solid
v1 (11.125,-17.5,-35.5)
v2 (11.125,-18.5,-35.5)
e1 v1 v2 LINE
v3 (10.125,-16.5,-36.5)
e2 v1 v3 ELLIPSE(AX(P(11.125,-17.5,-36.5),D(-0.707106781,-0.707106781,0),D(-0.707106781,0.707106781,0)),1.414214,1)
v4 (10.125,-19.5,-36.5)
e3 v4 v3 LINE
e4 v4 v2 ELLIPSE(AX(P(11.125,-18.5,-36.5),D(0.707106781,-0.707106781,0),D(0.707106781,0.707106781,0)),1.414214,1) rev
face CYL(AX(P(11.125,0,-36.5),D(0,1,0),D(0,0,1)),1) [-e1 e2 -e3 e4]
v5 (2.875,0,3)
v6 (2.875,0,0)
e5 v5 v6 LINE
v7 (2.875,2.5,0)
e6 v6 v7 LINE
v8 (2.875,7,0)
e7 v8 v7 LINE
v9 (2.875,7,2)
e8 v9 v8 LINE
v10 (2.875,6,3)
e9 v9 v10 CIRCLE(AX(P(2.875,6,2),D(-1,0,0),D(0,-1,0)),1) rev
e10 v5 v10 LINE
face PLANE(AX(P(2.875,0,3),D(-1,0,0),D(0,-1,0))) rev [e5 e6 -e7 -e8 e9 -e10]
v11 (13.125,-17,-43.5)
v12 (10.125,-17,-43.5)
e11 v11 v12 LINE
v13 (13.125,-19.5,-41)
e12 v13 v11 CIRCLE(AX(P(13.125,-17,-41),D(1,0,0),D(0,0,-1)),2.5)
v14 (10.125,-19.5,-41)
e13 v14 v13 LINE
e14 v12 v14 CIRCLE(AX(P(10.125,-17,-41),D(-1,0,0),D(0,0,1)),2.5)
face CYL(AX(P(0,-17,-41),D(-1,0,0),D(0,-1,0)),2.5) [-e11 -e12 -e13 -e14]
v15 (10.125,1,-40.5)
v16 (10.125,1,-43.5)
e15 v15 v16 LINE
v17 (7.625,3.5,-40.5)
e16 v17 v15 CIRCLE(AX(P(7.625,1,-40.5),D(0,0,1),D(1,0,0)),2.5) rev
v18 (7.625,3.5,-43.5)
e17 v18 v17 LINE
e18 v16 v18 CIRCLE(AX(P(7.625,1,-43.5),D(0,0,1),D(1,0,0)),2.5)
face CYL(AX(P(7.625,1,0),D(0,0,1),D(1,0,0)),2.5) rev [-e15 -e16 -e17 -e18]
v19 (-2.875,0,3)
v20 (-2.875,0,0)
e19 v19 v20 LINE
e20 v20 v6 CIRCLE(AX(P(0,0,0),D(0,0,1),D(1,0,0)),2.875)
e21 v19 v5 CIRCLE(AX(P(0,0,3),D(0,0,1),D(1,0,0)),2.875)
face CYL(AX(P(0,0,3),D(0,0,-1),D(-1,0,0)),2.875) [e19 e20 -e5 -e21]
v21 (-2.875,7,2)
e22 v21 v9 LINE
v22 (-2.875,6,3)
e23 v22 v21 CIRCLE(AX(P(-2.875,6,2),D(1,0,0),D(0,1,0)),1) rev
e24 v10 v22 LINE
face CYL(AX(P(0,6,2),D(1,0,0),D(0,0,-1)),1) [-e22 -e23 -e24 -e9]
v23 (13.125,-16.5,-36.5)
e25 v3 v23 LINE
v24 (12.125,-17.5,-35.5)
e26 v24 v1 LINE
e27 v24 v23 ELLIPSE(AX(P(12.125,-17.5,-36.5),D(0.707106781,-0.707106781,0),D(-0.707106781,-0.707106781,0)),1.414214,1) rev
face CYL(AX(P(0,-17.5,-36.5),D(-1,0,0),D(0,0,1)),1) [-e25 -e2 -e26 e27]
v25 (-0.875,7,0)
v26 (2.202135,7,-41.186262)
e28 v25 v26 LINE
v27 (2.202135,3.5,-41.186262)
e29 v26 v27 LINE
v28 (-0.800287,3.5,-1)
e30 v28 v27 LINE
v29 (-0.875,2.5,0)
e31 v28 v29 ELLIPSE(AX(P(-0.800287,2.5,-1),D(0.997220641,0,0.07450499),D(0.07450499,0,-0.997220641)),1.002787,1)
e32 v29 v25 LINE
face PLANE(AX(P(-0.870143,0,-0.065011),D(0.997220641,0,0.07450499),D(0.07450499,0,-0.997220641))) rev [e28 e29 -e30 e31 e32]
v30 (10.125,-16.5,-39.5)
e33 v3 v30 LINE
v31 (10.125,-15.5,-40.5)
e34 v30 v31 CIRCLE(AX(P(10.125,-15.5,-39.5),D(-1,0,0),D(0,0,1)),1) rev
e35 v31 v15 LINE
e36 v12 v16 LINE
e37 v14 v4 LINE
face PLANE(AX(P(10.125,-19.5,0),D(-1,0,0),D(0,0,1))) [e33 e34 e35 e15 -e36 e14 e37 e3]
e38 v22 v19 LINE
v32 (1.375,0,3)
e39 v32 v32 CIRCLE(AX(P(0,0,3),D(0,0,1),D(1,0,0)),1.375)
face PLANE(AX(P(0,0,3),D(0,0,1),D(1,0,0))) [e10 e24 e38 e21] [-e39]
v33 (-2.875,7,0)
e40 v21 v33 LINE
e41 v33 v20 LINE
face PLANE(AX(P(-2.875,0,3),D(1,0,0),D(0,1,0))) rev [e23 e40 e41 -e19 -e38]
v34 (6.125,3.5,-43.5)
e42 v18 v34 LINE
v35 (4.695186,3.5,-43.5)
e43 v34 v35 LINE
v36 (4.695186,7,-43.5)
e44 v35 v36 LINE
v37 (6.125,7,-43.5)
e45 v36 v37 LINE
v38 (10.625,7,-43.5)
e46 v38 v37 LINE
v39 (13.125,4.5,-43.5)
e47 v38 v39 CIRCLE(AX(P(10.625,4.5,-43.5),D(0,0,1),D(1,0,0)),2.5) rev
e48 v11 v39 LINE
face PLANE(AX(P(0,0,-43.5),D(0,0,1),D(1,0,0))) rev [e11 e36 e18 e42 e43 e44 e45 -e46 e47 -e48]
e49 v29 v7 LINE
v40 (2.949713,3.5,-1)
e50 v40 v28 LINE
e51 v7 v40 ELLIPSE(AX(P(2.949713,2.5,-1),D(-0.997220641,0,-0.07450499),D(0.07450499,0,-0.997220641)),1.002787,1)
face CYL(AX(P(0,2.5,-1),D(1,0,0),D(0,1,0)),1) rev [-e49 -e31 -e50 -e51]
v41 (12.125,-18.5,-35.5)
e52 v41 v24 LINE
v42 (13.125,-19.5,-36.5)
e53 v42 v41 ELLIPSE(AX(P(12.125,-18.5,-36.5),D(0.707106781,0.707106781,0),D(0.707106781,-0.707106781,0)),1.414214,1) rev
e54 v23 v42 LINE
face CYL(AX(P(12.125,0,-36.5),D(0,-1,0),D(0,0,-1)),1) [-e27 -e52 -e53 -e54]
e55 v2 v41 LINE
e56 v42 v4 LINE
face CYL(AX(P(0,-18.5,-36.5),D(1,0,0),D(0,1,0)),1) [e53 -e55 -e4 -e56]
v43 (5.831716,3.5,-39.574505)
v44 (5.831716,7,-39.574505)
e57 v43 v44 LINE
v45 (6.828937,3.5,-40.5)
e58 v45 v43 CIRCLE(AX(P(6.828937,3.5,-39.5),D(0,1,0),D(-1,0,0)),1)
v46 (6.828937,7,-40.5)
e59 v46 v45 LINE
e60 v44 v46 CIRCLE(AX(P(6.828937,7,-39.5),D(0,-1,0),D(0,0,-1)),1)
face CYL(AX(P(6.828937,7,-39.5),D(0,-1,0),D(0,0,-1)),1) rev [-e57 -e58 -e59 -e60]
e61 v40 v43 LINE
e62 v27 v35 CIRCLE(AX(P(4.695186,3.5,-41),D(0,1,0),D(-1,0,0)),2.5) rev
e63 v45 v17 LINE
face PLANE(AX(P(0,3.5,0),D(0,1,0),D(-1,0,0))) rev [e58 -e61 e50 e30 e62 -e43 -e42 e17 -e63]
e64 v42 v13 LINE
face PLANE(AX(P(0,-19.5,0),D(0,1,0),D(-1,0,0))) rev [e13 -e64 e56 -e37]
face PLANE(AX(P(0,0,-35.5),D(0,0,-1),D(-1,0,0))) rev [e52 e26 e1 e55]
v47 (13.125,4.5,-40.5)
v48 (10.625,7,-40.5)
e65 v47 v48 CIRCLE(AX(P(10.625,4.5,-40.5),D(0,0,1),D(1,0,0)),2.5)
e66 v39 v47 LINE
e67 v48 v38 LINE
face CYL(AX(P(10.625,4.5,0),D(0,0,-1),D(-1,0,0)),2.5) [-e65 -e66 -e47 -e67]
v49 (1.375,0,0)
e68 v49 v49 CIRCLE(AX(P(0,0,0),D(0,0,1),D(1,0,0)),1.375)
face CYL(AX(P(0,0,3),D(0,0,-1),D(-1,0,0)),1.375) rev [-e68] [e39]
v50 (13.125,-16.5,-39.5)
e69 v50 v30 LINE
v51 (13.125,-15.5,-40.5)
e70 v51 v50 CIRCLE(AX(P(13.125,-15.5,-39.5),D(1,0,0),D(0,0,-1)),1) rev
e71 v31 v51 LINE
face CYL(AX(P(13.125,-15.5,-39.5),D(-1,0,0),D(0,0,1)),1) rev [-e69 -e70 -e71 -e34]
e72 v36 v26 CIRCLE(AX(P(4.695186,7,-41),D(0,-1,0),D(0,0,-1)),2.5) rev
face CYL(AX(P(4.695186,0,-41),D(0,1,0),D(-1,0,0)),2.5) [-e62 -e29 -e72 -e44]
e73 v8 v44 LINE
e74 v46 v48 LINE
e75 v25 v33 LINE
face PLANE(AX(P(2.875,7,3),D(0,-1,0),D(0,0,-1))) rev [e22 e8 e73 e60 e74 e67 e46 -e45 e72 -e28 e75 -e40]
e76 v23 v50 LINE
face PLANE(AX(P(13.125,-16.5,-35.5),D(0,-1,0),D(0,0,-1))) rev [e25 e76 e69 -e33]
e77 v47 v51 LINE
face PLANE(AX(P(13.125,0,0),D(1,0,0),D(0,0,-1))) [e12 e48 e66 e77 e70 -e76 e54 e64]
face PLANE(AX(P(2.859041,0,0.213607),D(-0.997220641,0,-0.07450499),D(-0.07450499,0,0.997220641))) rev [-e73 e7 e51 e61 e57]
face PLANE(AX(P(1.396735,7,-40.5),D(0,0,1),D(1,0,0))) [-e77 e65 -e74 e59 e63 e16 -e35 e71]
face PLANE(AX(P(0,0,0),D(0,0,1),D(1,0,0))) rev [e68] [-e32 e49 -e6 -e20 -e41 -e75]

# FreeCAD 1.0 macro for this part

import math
import FreeCAD as App
import Part
import Sketcher
from FreeCAD import Vector


def edges_at(feature, points):
    """Names of the edges that pass closest to the given points."""
    edges = feature.Shape.Edges
    near = lambda p: min(range(len(edges)), key=lambda i: edges[i].distToShape(Part.Vertex(*p))[0])
    return sorted({f"Edge{near(p) + 1}" for p in points})

doc = App.newDocument("Part")
params = doc.addObject("Spreadsheet::Sheet", "Params")
for row, (alias, value) in enumerate([
    ("sketch1_diameter", "2.75 mm"),
    ("sketch1_height", "7 mm"),
    ("pad1_length", "3 mm"),
    ("sketch2_height", "3.5 mm"),
    ("sketch2_width", "3.75 mm"),
    ("sketch3_height", "3.5 mm"),
    ("sketch3_width", "3.75 mm"),
    ("sketch4_height", "3 mm"),
    ("sketch4_width", "3.5 mm"),
    ("pad2_length", "7.224138 mm"),
    ("sketch5_width", "3 mm"),
    ("pad3_length", "23 mm"),
    ("sketch6_width", "3 mm"),
    ("pad4_length", "5 mm"),
    ("fillet_radius", "2.5 mm"),
    ("fillet2_radius", "1 mm"),
], start=1):
    params.set(f"A{row}", alias)
    params.set(f"B{row}", "=" + value)
    params.setAlias(f"B{row}", alias)

body = doc.addObject("PartDesign::Body", "Body")

sketch1 = body.newObject("Sketcher::SketchObject", "Sketch")
sketch1.AttachmentSupport = (doc.getObject("XY_Plane"), [""])
sketch1.MapMode = "FlatFace"
sketch1.addGeometry(Part.LineSegment(Vector(-2.875, 7, 0), Vector(-2.875, 0, 0)), False)
sketch1.addGeometry(Part.ArcOfCircle(Part.Circle(Vector(0, 0, 0), Vector(0, 0, 1), 2.875), math.radians(180), math.radians(360)), False)
sketch1.addGeometry(Part.LineSegment(Vector(2.875, 0, 0), Vector(2.875, 7, 0)), False)
sketch1.addGeometry(Part.LineSegment(Vector(2.875, 7, 0), Vector(-2.875, 7, 0)), False)
sketch1.addGeometry(Part.Circle(Vector(0, 0, 0), Vector(0, 0, 1), 1.375), False)
sketch1.addConstraint(Sketcher.Constraint("Tangent", 0, 2, 1, 1))
sketch1.addConstraint(Sketcher.Constraint("Tangent", 1, 2, 2, 1))
sketch1.addConstraint(Sketcher.Constraint("Coincident", 2, 2, 3, 1))
sketch1.addConstraint(Sketcher.Constraint("Coincident", 3, 2, 0, 1))
sketch1.addConstraint(Sketcher.Constraint("Vertical", 0))
sketch1.addConstraint(Sketcher.Constraint("Vertical", 2))
sketch1.addConstraint(Sketcher.Constraint("Horizontal", 3))
sketch1.addConstraint(Sketcher.Constraint("Coincident", 1, 3, -1, 1))
sketch1.addConstraint(Sketcher.Constraint("Coincident", 4, 3, -1, 1))
sketch1.addConstraint(Sketcher.Constraint("Diameter", 4, 2.75))
sketch1.addConstraint(Sketcher.Constraint("DistanceY", 0, 2, 0, 1, 7.0))
sketch1.addConstraint(Sketcher.Constraint("Radius", 1, 2.875))
sketch1.setExpression("Constraints[9]", "Params.sketch1_diameter")
sketch1.setExpression("Constraints[10]", "Params.sketch1_height")
pad1 = body.newObject("PartDesign::Pad", "Pad")
pad1.Profile = sketch1
pad1.setExpression("Length", "Params.pad1_length")

sketch2 = body.newObject("Sketcher::SketchObject", "Sketch001")
sketch2.AttachmentSupport = (doc.getObject("XY_Plane"), [""])
sketch2.MapMode = "FlatFace"
sketch2.addGeometry(Part.LineSegment(Vector(-0.875, 7, 0), Vector(2.875, 7, 0)), False)
sketch2.addGeometry(Part.LineSegment(Vector(2.875, 7, 0), Vector(2.875, 3.5, 0)), False)
sketch2.addGeometry(Part.LineSegment(Vector(2.875, 3.5, 0), Vector(-0.875, 3.5, 0)), False)
sketch2.addGeometry(Part.LineSegment(Vector(-0.875, 3.5, 0), Vector(-0.875, 7, 0)), False)
sketch2.addConstraint(Sketcher.Constraint("Coincident", 0, 2, 1, 1))
sketch2.addConstraint(Sketcher.Constraint("Coincident", 1, 2, 2, 1))
sketch2.addConstraint(Sketcher.Constraint("Coincident", 2, 2, 3, 1))
sketch2.addConstraint(Sketcher.Constraint("Coincident", 3, 2, 0, 1))
sketch2.addConstraint(Sketcher.Constraint("Horizontal", 0))
sketch2.addConstraint(Sketcher.Constraint("Vertical", 1))
sketch2.addConstraint(Sketcher.Constraint("Horizontal", 2))
sketch2.addConstraint(Sketcher.Constraint("Vertical", 3))
sketch2.addConstraint(Sketcher.Constraint("DistanceY", 1, 2, 1, 1, 3.5))
sketch2.addConstraint(Sketcher.Constraint("DistanceY", -1, 1, 0, 2, 7.0))
sketch2.addConstraint(Sketcher.Constraint("DistanceX", 0, 1, 0, 2, 3.75))
sketch2.addConstraint(Sketcher.Constraint("DistanceX", -1, 1, 0, 2, 2.875))
sketch2.setExpression("Constraints[8]", "Params.sketch2_height")
sketch2.setExpression("Constraints[10]", "Params.sketch2_width")

sketch3 = body.newObject("Sketcher::SketchObject", "Sketch002")
sketch3.AttachmentSupport = (doc.getObject("XY_Plane"), [""])
sketch3.MapMode = "FlatFace"
sketch3.AttachmentOffset = App.Placement(Vector(0, 0, -43.5), App.Rotation())
sketch3.addGeometry(Part.LineSegment(Vector(6.125, 7, 0), Vector(6.125, 3.5, 0)), False)
sketch3.addGeometry(Part.LineSegment(Vector(6.125, 3.5, 0), Vector(2.375, 3.5, 0)), False)
sketch3.addGeometry(Part.LineSegment(Vector(2.375, 3.5, 0), Vector(2.375, 7, 0)), False)
sketch3.addGeometry(Part.LineSegment(Vector(2.375, 7, 0), Vector(6.125, 7, 0)), False)
sketch3.addConstraint(Sketcher.Constraint("Coincident", 0, 2, 1, 1))
sketch3.addConstraint(Sketcher.Constraint("Coincident", 1, 2, 2, 1))
sketch3.addConstraint(Sketcher.Constraint("Coincident", 2, 2, 3, 1))
sketch3.addConstraint(Sketcher.Constraint("Coincident", 3, 2, 0, 1))
sketch3.addConstraint(Sketcher.Constraint("Vertical", 0))
sketch3.addConstraint(Sketcher.Constraint("Horizontal", 1))
sketch3.addConstraint(Sketcher.Constraint("Vertical", 2))
sketch3.addConstraint(Sketcher.Constraint("Horizontal", 3))
sketch3.addConstraint(Sketcher.Constraint("DistanceY", 0, 2, 0, 1, 3.5))
sketch3.addConstraint(Sketcher.Constraint("DistanceY", -1, 1, 2, 2, 7.0))
sketch3.addConstraint(Sketcher.Constraint("DistanceX", 1, 2, 1, 1, 3.75))
sketch3.addConstraint(Sketcher.Constraint("DistanceX", -1, 1, 0, 2, 6.125))
sketch3.setExpression("Constraints[8]", "Params.sketch3_height")
sketch3.setExpression("Constraints[10]", "Params.sketch3_width")

additiveloft = body.newObject("PartDesign::AdditiveLoft", "AdditiveLoft")
additiveloft.Profile = sketch2
additiveloft.Sections = [sketch3]

sketch4 = body.newObject("Sketcher::SketchObject", "Sketch003")
sketch4.AttachmentSupport = (doc.getObject("YZ_Plane"), [""])
sketch4.MapMode = "FlatFace"
sketch4.AttachmentOffset = App.Placement(Vector(0, 0, 5.900862), App.Rotation())
sketch4.addGeometry(Part.LineSegment(Vector(3.5, -40.5, 0), Vector(3.5, -43.5, 0)), False)
sketch4.addGeometry(Part.LineSegment(Vector(3.5, -43.5, 0), Vector(7, -43.5, 0)), False)
sketch4.addGeometry(Part.LineSegment(Vector(7, -43.5, 0), Vector(7, -40.5, 0)), False)
sketch4.addGeometry(Part.LineSegment(Vector(7, -40.5, 0), Vector(3.5, -40.5, 0)), False)
sketch4.addConstraint(Sketcher.Constraint("Coincident", 0, 2, 1, 1))
sketch4.addConstraint(Sketcher.Constraint("Coincident", 1, 2, 2, 1))
sketch4.addConstraint(Sketcher.Constraint("Coincident", 2, 2, 3, 1))
sketch4.addConstraint(Sketcher.Constraint("Coincident", 3, 2, 0, 1))
sketch4.addConstraint(Sketcher.Constraint("Vertical", 0))
sketch4.addConstraint(Sketcher.Constraint("Horizontal", 1))
sketch4.addConstraint(Sketcher.Constraint("Vertical", 2))
sketch4.addConstraint(Sketcher.Constraint("Horizontal", 3))
sketch4.addConstraint(Sketcher.Constraint("DistanceY", 0, 2, 0, 1, 3.0))
sketch4.addConstraint(Sketcher.Constraint("DistanceX", 1, 1, 1, 2, 3.5))
sketch4.addConstraint(Sketcher.Constraint("DistanceX", -1, 1, 1, 2, 7.0))
sketch4.addConstraint(Sketcher.Constraint("DistanceY", 0, 2, -1, 1, 43.5))
sketch4.setExpression("Constraints[8]", "Params.sketch4_height")
sketch4.setExpression("Constraints[9]", "Params.sketch4_width")
pad2 = body.newObject("PartDesign::Pad", "Pad001")
pad2.Profile = sketch4
pad2.setExpression("Length", "Params.pad2_length")

sketch5 = body.newObject("Sketcher::SketchObject", "Sketch004")
sketch5.AttachmentSupport = (doc.getObject("XZ_Plane"), [""])
sketch5.MapMode = "FlatFace"
sketch5.AttachmentOffset = App.Placement(Vector(0, 0, 19.5), App.Rotation())
sketch5.addGeometry(Part.LineSegment(Vector(13.125, -40.5, 0), Vector(13.125, -43.5, 0)), False)
sketch5.addGeometry(Part.LineSegment(Vector(13.125, -43.5, 0), Vector(10.125, -43.5, 0)), False)
sketch5.addGeometry(Part.LineSegment(Vector(10.125, -43.5, 0), Vector(10.125, -40.5, 0)), False)
sketch5.addGeometry(Part.LineSegment(Vector(10.125, -40.5, 0), Vector(13.125, -40.5, 0)), False)
sketch5.addConstraint(Sketcher.Constraint("Coincident", 0, 2, 1, 1))
sketch5.addConstraint(Sketcher.Constraint("Coincident", 1, 2, 2, 1))
sketch5.addConstraint(Sketcher.Constraint("Coincident", 2, 2, 3, 1))
sketch5.addConstraint(Sketcher.Constraint("Coincident", 3, 2, 0, 1))
sketch5.addConstraint(Sketcher.Constraint("Vertical", 0))
sketch5.addConstraint(Sketcher.Constraint("Horizontal", 1))
sketch5.addConstraint(Sketcher.Constraint("Vertical", 2))
sketch5.addConstraint(Sketcher.Constraint("Horizontal", 3))
sketch5.addConstraint(Sketcher.Constraint("Equal", 3, 0))
sketch5.addConstraint(Sketcher.Constraint("DistanceX", 1, 2, 1, 1, 3.0))
sketch5.addConstraint(Sketcher.Constraint("DistanceY", 0, 2, -1, 1, 43.5))
sketch5.addConstraint(Sketcher.Constraint("DistanceX", -1, 1, 0, 2, 13.125))
sketch5.setExpression("Constraints[9]", "Params.sketch5_width")
pad3 = body.newObject("PartDesign::Pad", "Pad002")
pad3.Profile = sketch5
pad3.setExpression("Length", "Params.pad3_length")
pad3.Reversed = True

sketch6 = body.newObject("Sketcher::SketchObject", "Sketch005")
sketch6.AttachmentSupport = (doc.getObject("XY_Plane"), [""])
sketch6.MapMode = "FlatFace"
sketch6.AttachmentOffset = App.Placement(Vector(0, 0, -40.5), App.Rotation())
sketch6.addGeometry(Part.LineSegment(Vector(10.125, -16.5, 0), Vector(10.125, -19.5, 0)), False)
sketch6.addGeometry(Part.LineSegment(Vector(10.125, -19.5, 0), Vector(13.125, -19.5, 0)), False)
sketch6.addGeometry(Part.LineSegment(Vector(13.125, -19.5, 0), Vector(13.125, -16.5, 0)), False)
sketch6.addGeometry(Part.LineSegment(Vector(13.125, -16.5, 0), Vector(10.125, -16.5, 0)), False)
sketch6.addConstraint(Sketcher.Constraint("Coincident", 0, 2, 1, 1))
sketch6.addConstraint(Sketcher.Constraint("Coincident", 1, 2, 2, 1))
sketch6.addConstraint(Sketcher.Constraint("Coincident", 2, 2, 3, 1))
sketch6.addConstraint(Sketcher.Constraint("Coincident", 3, 2, 0, 1))
sketch6.addConstraint(Sketcher.Constraint("Vertical", 0))
sketch6.addConstraint(Sketcher.Constraint("Horizontal", 1))
sketch6.addConstraint(Sketcher.Constraint("Vertical", 2))
sketch6.addConstraint(Sketcher.Constraint("Horizontal", 3))
sketch6.addConstraint(Sketcher.Constraint("Equal", 3, 0))
sketch6.addConstraint(Sketcher.Constraint("DistanceX", 1, 1, 1, 2, 3.0))
sketch6.addConstraint(Sketcher.Constraint("DistanceY", 0, 2, -1, 1, 19.5))
sketch6.addConstraint(Sketcher.Constraint("DistanceX", -1, 1, 0, 2, 10.125))
sketch6.setExpression("Constraints[9]", "Params.sketch6_width")
pad4 = body.newObject("PartDesign::Pad", "Pad003")
pad4.Profile = sketch6
pad4.setExpression("Length", "Params.pad4_length")
doc.recompute()

fillet = body.newObject("PartDesign::Fillet", "Fillet")
fillet.Base = (pad4, edges_at(pad4, [
    (2.375, 5.25, -43.5),
    (13.125, 7, -42),
    (11.625, -19.5, -43.5),
    (10.125, 3.5, -42),
]))
fillet.setExpression("Radius", "Params.fillet_radius")
doc.recompute()

fillet2 = body.newObject("PartDesign::Fillet", "Fillet001")
fillet2.Base = (fillet, edges_at(fillet, [
    (0, 7, 3),
    (1, 3.5, 0),
    (5.901, 5.25, -40.5),
    (11.625, -16.5, -40.5),
    (11.625, -19.5, -35.5),
    (13.125, -18, -35.5),
    (11.625, -16.5, -35.5),
    (10.125, -18, -35.5),
]))
fillet2.setExpression("Radius", "Params.fillet2_radius")

doc.recompute()
